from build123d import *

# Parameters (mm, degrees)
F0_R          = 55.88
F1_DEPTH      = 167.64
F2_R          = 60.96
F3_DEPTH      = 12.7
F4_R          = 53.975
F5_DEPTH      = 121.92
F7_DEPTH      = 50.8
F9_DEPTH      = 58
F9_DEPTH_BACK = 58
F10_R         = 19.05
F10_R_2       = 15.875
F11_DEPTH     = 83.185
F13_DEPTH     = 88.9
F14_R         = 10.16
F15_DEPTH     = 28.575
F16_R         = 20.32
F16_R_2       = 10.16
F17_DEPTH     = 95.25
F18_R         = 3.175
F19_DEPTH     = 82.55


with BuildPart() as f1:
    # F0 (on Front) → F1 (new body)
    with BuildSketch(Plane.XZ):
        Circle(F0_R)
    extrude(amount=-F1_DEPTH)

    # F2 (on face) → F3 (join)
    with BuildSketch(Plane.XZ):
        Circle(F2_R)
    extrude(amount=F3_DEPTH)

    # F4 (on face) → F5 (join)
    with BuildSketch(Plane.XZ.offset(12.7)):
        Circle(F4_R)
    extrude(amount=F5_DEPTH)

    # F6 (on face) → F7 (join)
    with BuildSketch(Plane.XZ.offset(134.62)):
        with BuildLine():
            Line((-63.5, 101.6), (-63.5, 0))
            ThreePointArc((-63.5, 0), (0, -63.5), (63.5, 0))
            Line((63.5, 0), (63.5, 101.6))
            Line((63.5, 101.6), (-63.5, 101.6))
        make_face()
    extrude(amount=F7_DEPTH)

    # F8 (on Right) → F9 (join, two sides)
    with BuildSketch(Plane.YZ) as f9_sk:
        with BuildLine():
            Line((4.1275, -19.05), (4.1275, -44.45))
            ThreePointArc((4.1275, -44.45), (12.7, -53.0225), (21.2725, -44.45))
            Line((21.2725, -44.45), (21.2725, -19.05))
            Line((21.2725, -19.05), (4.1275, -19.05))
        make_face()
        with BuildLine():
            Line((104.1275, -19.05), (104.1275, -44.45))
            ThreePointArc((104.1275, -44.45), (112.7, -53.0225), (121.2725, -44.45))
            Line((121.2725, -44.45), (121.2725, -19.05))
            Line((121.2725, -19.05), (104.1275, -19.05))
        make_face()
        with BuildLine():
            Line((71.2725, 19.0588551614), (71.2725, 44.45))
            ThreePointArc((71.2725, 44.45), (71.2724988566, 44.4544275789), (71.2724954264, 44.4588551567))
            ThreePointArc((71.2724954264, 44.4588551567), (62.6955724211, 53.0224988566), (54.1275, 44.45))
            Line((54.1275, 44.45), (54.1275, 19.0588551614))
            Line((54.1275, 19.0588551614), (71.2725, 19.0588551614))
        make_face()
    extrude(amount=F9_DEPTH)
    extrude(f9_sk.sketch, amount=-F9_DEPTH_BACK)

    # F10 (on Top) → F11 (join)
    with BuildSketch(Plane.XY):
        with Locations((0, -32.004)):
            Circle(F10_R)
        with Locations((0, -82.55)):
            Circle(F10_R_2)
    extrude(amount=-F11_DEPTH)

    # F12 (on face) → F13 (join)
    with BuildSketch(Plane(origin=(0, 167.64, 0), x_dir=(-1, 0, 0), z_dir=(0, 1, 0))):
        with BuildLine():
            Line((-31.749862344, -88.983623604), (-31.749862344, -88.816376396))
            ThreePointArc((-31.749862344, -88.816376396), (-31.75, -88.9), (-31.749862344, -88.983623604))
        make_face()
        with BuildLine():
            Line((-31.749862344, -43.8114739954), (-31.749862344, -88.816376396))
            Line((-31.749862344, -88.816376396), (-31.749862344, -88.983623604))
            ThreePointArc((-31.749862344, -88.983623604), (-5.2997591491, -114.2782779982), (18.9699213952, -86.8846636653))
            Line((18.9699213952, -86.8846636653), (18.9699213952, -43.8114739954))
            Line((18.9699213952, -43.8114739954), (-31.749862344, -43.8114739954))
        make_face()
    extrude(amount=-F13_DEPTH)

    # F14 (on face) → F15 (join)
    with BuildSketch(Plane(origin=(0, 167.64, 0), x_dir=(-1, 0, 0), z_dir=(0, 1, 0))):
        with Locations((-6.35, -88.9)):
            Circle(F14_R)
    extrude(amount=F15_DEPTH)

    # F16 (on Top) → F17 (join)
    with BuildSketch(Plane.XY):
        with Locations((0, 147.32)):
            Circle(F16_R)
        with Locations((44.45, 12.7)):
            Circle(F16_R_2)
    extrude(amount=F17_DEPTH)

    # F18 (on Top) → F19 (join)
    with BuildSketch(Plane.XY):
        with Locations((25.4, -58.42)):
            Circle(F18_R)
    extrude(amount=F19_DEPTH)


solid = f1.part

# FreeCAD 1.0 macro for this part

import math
import FreeCAD as App
import Part
import Sketcher
from FreeCAD import Vector
Q = App.Units.Quantity

doc = App.newDocument("Part")
body = doc.addObject("PartDesign::Body", "Body")

# Sketch on XZ plane
sketch1 = doc.addObject("Sketcher::SketchObject", "Sketch")
body.addObject(sketch1)
sketch1.AttachmentSupport = (doc.XZ_Plane, [""])
sketch1.MapMode = "FlatFace"
sketch1.addGeometry(Part.Circle(Vector(0, 0, 0), Vector(0, 0, 1), 56), False)
sketch1.addConstraint(Sketcher.Constraint("Coincident", 0, 3, -1, 1))
sketch1.addConstraint(Sketcher.Constraint("Diameter", 0, Q("4.4 in")))
pad1 = doc.addObject("PartDesign::Pad", "Pad")
body.addObject(pad1)
pad1.Profile = sketch1
pad1.Length = Q("6.6 in")
pad1.Reversed = True

# Sketch on XZ plane
sketch2 = doc.addObject("Sketcher::SketchObject", "Sketch001")
body.addObject(sketch2)
sketch2.AttachmentSupport = (doc.XZ_Plane, [""])
sketch2.MapMode = "FlatFace"
sketch2.addGeometry(Part.Circle(Vector(0, 0, 0), Vector(0, 0, 1), 61), False)
sketch2.addConstraint(Sketcher.Constraint("Coincident", 0, 3, -1, 1))
sketch2.addConstraint(Sketcher.Constraint("Diameter", 0, Q("4.8 in")))
pad2 = doc.addObject("PartDesign::Pad", "Pad001")
body.addObject(pad2)
pad2.Profile = sketch2
pad2.Length = Q("0.5 in")

# Sketch on XZ plane
sketch3 = doc.addObject("Sketcher::SketchObject", "Sketch002")
body.addObject(sketch3)
sketch3.AttachmentSupport = (doc.XZ_Plane, [""])
sketch3.MapMode = "FlatFace"
sketch3.AttachmentOffset = App.Placement(Vector(0, 0, 0.5 * 25.4), App.Rotation())
sketch3.addGeometry(Part.Circle(Vector(0, 0, 0), Vector(0, 0, 1), 54), False)
sketch3.addConstraint(Sketcher.Constraint("Coincident", 0, 3, -1, 1))
sketch3.addConstraint(Sketcher.Constraint("Diameter", 0, Q("4.25 in")))
pad3 = doc.addObject("PartDesign::Pad", "Pad002")
body.addObject(pad3)
pad3.Profile = sketch3
pad3.Length = Q("4.8 in")

# Sketch on XZ plane
sketch4 = doc.addObject("Sketcher::SketchObject", "Sketch003")
body.addObject(sketch4)
sketch4.AttachmentSupport = (doc.XZ_Plane, [""])
sketch4.MapMode = "FlatFace"
sketch4.AttachmentOffset = App.Placement(Vector(0, 0, 5.3 * 25.4), App.Rotation())
sketch4.addGeometry(Part.LineSegment(Vector(-64, 102, 0), Vector(-64, 0, 0)), False)
sketch4.addGeometry(Part.ArcOfCircle(Part.Circle(Vector(0, 0, 0), Vector(0, 0, 1), 64), math.radians(180), math.radians(360)), False)
sketch4.addGeometry(Part.LineSegment(Vector(64, 0, 0), Vector(64, 102, 0)), False)
sketch4.addGeometry(Part.LineSegment(Vector(64, 102, 0), Vector(-64, 102, 0)), False)
sketch4.addConstraint(Sketcher.Constraint("Tangent", 0, 2, 1, 1))
sketch4.addConstraint(Sketcher.Constraint("Tangent", 1, 2, 2, 1))
sketch4.addConstraint(Sketcher.Constraint("Coincident", 2, 2, 3, 1))
sketch4.addConstraint(Sketcher.Constraint("Coincident", 3, 2, 0, 1))
sketch4.addConstraint(Sketcher.Constraint("Vertical", 0))
sketch4.addConstraint(Sketcher.Constraint("Vertical", 2))
sketch4.addConstraint(Sketcher.Constraint("Horizontal", 3))
sketch4.addConstraint(Sketcher.Constraint("Coincident", 1, 3, -1, 1))
sketch4.addConstraint(Sketcher.Constraint("Radius", 1, Q("2.5 in")))
sketch4.addConstraint(Sketcher.Constraint("DistanceY", 0, 2, 0, 1, Q("4 in")))
pad4 = doc.addObject("PartDesign::Pad", "Pad003")
body.addObject(pad4)
pad4.Profile = sketch4
pad4.Length = Q("2 in")

# Sketch on YZ plane
sketch5 = doc.addObject("Sketcher::SketchObject", "Sketch004")
body.addObject(sketch5)
sketch5.AttachmentSupport = (doc.YZ_Plane, [""])
sketch5.MapMode = "FlatFace"
sketch5.addGeometry(Part.LineSegment(Vector(4.128, -19.05, 0), Vector(4.128, -44.45, 0)), False)
sketch5.addGeometry(Part.ArcOfCircle(Part.Circle(Vector(12.7, -44.45, 0), Vector(0, 0, 1), 8.572), math.radians(180), math.radians(360)), False)
sketch5.addGeometry(Part.LineSegment(Vector(21.273, -44.45, 0), Vector(21.273, -19.05, 0)), False)
sketch5.addGeometry(Part.LineSegment(Vector(21.273, -19.05, 0), Vector(4.128, -19.05, 0)), False)
sketch5.addGeometry(Part.LineSegment(Vector(104.127, -19.05, 0), Vector(104.127, -44.45, 0)), False)
sketch5.addGeometry(Part.ArcOfCircle(Part.Circle(Vector(112.7, -44.45, 0), Vector(0, 0, 1), 8.572), math.radians(180), math.radians(360)), False)
sketch5.addGeometry(Part.LineSegment(Vector(121.272, -44.45, 0), Vector(121.272, -19.05, 0)), False)
sketch5.addGeometry(Part.LineSegment(Vector(121.272, -19.05, 0), Vector(104.127, -19.05, 0)), False)
sketch5.addGeometry(Part.LineSegment(Vector(71.272, 19.059, 0), Vector(71.272, 44.45, 0)), False)
sketch5.addGeometry(Part.ArcOfCircle(Part.Circle(Vector(62.7, 44.45, 0), Vector(0, 0, 1), 8.572), math.radians(0), math.radians(0.06)), False)
sketch5.addGeometry(Part.ArcOfCircle(Part.Circle(Vector(62.7, 44.45, 0), Vector(0, 0, 1), 8.572), math.radians(0), math.radians(180)), False)
sketch5.addGeometry(Part.LineSegment(Vector(54.127, 44.45, 0), Vector(54.127, 19.059, 0)), False)
sketch5.addGeometry(Part.LineSegment(Vector(54.127, 19.059, 0), Vector(71.272, 19.059, 0)), False)
sketch5.addConstraint(Sketcher.Constraint("Tangent", 0, 2, 1, 1))
sketch5.addConstraint(Sketcher.Constraint("Tangent", 1, 2, 2, 1))
sketch5.addConstraint(Sketcher.Constraint("Coincident", 2, 2, 3, 1))
sketch5.addConstraint(Sketcher.Constraint("Coincident", 3, 2, 0, 1))
sketch5.addConstraint(Sketcher.Constraint("Tangent", 4, 2, 5, 1))
sketch5.addConstraint(Sketcher.Constraint("Tangent", 5, 2, 6, 1))
sketch5.addConstraint(Sketcher.Constraint("Coincident", 6, 2, 7, 1))
sketch5.addConstraint(Sketcher.Constraint("Coincident", 7, 2, 4, 1))
sketch5.addConstraint(Sketcher.Constraint("Tangent", 8, 2, 9, 1))
sketch5.addConstraint(Sketcher.Constraint("Tangent", 9, 2, 10, 1))
sketch5.addConstraint(Sketcher.Constraint("Tangent", 10, 2, 11, 1))
sketch5.addConstraint(Sketcher.Constraint("Coincident", 11, 2, 12, 1))
sketch5.addConstraint(Sketcher.Constraint("Coincident", 12, 2, 8, 1))
sketch5.addConstraint(Sketcher.Constraint("Vertical", 0))
sketch5.addConstraint(Sketcher.Constraint("Vertical", 2))
sketch5.addConstraint(Sketcher.Constraint("Horizontal", 3))
sketch5.addConstraint(Sketcher.Constraint("Vertical", 4))
sketch5.addConstraint(Sketcher.Constraint("Vertical", 6))
sketch5.addConstraint(Sketcher.Constraint("Horizontal", 7))
sketch5.addConstraint(Sketcher.Constraint("Vertical", 8))
sketch5.addConstraint(Sketcher.Constraint("Vertical", 11))
sketch5.addConstraint(Sketcher.Constraint("Horizontal", 12))
sketch5.addConstraint(Sketcher.Constraint("Equal", 1, 5))
sketch5.addConstraint(Sketcher.Constraint("Equal", 5, 10))
sketch5.addConstraint(Sketcher.Constraint("Horizontal", 1, 3, 5, 3))
sketch5.addConstraint(Sketcher.Constraint("Horizontal", 3, 2, 6, 2))
sketch5.addConstraint(Sketcher.Constraint("DistanceY", 0, 2, 0, 1, Q("1 in")))
sketch5.addConstraint(Sketcher.Constraint("DistanceY", 11, 2, 9, 2, Q("1 in")))
sketch5.addConstraint(Sketcher.Constraint("DistanceX", -1, 1, 1, 3, Q("0.5 in")))
sketch5.addConstraint(Sketcher.Constraint("Radius", 1, Q("0.3375 in")))
sketch5.addConstraint(Sketcher.Constraint("DistanceY", 5, 3, 9, 3, Q("3.5 in")))
sketch5.addConstraint(Sketcher.Constraint("DistanceY", 1, 3, -1, 1, Q("1.75 in")))
sketch5.addConstraint(Sketcher.Constraint("Radius", 9, 8.572439))
sketch5.addConstraint(Sketcher.Constraint("DistanceX", -1, 1, 5, 3, 112.7))
sketch5.addConstraint(Sketcher.Constraint("DistanceX", -1, 1, 10, 3, 62.7))
sketch5.addConstraint(Sketcher.Constraint("DistanceY", 8, 1, 8, 2, 25.391145))
pad5 = doc.addObject("PartDesign::Pad", "Pad004")
body.addObject(pad5)
pad5.Profile = sketch5
pad5.Type = "TwoLengths"
pad5.Length = 58
pad5.Length2 = 58

# Sketch on XY plane
sketch6 = doc.addObject("Sketcher::SketchObject", "Sketch005")
body.addObject(sketch6)
sketch6.AttachmentSupport = (doc.XY_Plane, [""])
sketch6.MapMode = "FlatFace"
sketch6.addGeometry(Part.Circle(Vector(0, -32, 0), Vector(0, 0, 1), 19), False)
sketch6.addGeometry(Part.Circle(Vector(0, -83, 0), Vector(0, 0, 1), 16), False)
sketch6.addConstraint(Sketcher.Constraint("PointOnObject", 0, 3, -2))
sketch6.addConstraint(Sketcher.Constraint("PointOnObject", 1, 3, -2))
sketch6.addConstraint(Sketcher.Constraint("Diameter", 0, Q("1.5 in")))
sketch6.addConstraint(Sketcher.Constraint("Diameter", 1, Q("1.25 in")))
sketch6.addConstraint(Sketcher.Constraint("DistanceY", 0, 3, -1, 1, Q("1.26 in")))
sketch6.addConstraint(Sketcher.Constraint("DistanceY", 1, 3, -1, 1, Q("3.25 in")))
pad6 = doc.addObject("PartDesign::Pad", "Pad005")
body.addObject(pad6)
pad6.Profile = sketch6
pad6.Length = Q("3.275 in")
pad6.Reversed = True

# Sketch on XZ plane
sketch7 = doc.addObject("Sketcher::SketchObject", "Sketch006")
body.addObject(sketch7)
sketch7.AttachmentSupport = (doc.XZ_Plane, [""])
sketch7.MapMode = "FlatFace"
sketch7.AttachmentOffset = App.Placement(Vector(0, 0, -6.6 * 25.4), App.Rotation())
sketch7.addGeometry(Part.ArcOfCircle(Part.Circle(Vector(6.35, -88.9, 0), Vector(0, 0, 1), 25.4), math.radians(-0.19), math.radians(0.19)), False)
sketch7.addGeometry(Part.ArcOfCircle(Part.Circle(Vector(6.35, -88.9, 0), Vector(0, 0, 1), 25.4), math.radians(175), math.radians(360)), False)
sketch7.addGeometry(Part.LineSegment(Vector(-18.97, -86.88, 0), Vector(-18.97, -43.81, 0)), False)
sketch7.addGeometry(Part.LineSegment(Vector(-18.97, -43.81, 0), Vector(31.75, -43.81, 0)), False)
sketch7.addGeometry(Part.LineSegment(Vector(31.75, -43.81, 0), Vector(31.75, -88.82, 0)), False)
sketch7.addConstraint(Sketcher.Constraint("Tangent", 0, 1, 1, 2))
sketch7.addConstraint(Sketcher.Constraint("Coincident", 1, 1, 2, 1))
sketch7.addConstraint(Sketcher.Constraint("Coincident", 2, 2, 3, 1))
sketch7.addConstraint(Sketcher.Constraint("Coincident", 3, 2, 4, 1))
sketch7.addConstraint(Sketcher.Constraint("Coincident", 4, 2, 0, 2))
sketch7.addConstraint(Sketcher.Constraint("Vertical", 2))
sketch7.addConstraint(Sketcher.Constraint("Horizontal", 3))
sketch7.addConstraint(Sketcher.Constraint("Vertical", 4))
sketch7.addConstraint(Sketcher.Constraint("Vertical", 0, 1, 3, 2))
sketch7.addConstraint(Sketcher.Constraint("Radius", 0, Q("1.0000002 in")))
sketch7.addConstraint(Sketcher.Constraint("Radius", 1, Q("1 in")))
sketch7.addConstraint(Sketcher.Constraint("DistanceY", 0, 3, -1, 1, Q("3.5 in")))
sketch7.addConstraint(Sketcher.Constraint("DistanceX", -1, 1, 0, 3, Q("0.2499998 in")))
sketch7.addConstraint(Sketcher.Constraint("DistanceY", 2, 1, 2, 2, 43.07319))
sketch7.addConstraint(Sketcher.Constraint("DistanceX", 3, 1, 3, 2, 50.719784))
sketch7.addConstraint(Sketcher.Constraint("DistanceY", 4, 2, 4, 1, 45.004902))
pad7 = doc.addObject("PartDesign::Pad", "Pad006")
body.addObject(pad7)
pad7.Profile = sketch7
pad7.Length = Q("3.5 in")

# Sketch on XZ plane
sketch8 = doc.addObject("Sketcher::SketchObject", "Sketch007")
body.addObject(sketch8)
sketch8.AttachmentSupport = (doc.XZ_Plane, [""])
sketch8.MapMode = "FlatFace"
sketch8.AttachmentOffset = App.Placement(Vector(0, 0, -6.6 * 25.4), App.Rotation())
sketch8.addGeometry(Part.Circle(Vector(6, -89, 0), Vector(0, 0, 1), 10), False)
sketch8.addConstraint(Sketcher.Constraint("Diameter", 0, Q("0.8 in")))
sketch8.addConstraint(Sketcher.Constraint("DistanceY", 0, 3, -1, 1, Q("3.5 in")))
sketch8.addConstraint(Sketcher.Constraint("DistanceX", -1, 1, 0, 3, Q("0.25 in")))
pad8 = doc.addObject("PartDesign::Pad", "Pad007")
body.addObject(pad8)
pad8.Profile = sketch8
pad8.Length = Q("1.125 in")
pad8.Reversed = True

# Sketch on XY plane
sketch9 = doc.addObject("Sketcher::SketchObject", "Sketch008")
body.addObject(sketch9)
sketch9.AttachmentSupport = (doc.XY_Plane, [""])
sketch9.MapMode = "FlatFace"
sketch9.addGeometry(Part.Circle(Vector(0, 147, 0), Vector(0, 0, 1), 20), False)
sketch9.addGeometry(Part.Circle(Vector(44, 13, 0), Vector(0, 0, 1), 10), False)
sketch9.addConstraint(Sketcher.Constraint("PointOnObject", 0, 3, -2))
sketch9.addConstraint(Sketcher.Constraint("Diameter", 0, Q("1.6 in")))
sketch9.addConstraint(Sketcher.Constraint("Diameter", 1, Q("0.8 in")))
sketch9.addConstraint(Sketcher.Constraint("DistanceY", -1, 1, 0, 3, Q("5.8 in")))
sketch9.addConstraint(Sketcher.Constraint("DistanceY", -1, 1, 1, 3, Q("0.5 in")))
sketch9.addConstraint(Sketcher.Constraint("DistanceX", -1, 1, 1, 3, Q("1.75 in")))
pad9 = doc.addObject("PartDesign::Pad", "Pad008")
body.addObject(pad9)
pad9.Profile = sketch9
pad9.Length = Q("3.75 in")

# Sketch on XY plane
sketch10 = doc.addObject("Sketcher::SketchObject", "Sketch009")
body.addObject(sketch10)
sketch10.AttachmentSupport = (doc.XY_Plane, [""])
sketch10.MapMode = "FlatFace"
sketch10.addGeometry(Part.Circle(Vector(25.4, -58.4, 0), Vector(0, 0, 1), 3.2), False)
sketch10.addConstraint(Sketcher.Constraint("Diameter", 0, Q("0.25 in")))
sketch10.addConstraint(Sketcher.Constraint("DistanceX", -1, 1, 0, 3, Q("1 in")))
sketch10.addConstraint(Sketcher.Constraint("DistanceY", 0, 3, -1, 1, Q("2.3 in")))
pad10 = doc.addObject("PartDesign::Pad", "Pad009")
body.addObject(pad10)
pad10.Profile = sketch10
pad10.Length = Q("3.25 in")

doc.recompute()
